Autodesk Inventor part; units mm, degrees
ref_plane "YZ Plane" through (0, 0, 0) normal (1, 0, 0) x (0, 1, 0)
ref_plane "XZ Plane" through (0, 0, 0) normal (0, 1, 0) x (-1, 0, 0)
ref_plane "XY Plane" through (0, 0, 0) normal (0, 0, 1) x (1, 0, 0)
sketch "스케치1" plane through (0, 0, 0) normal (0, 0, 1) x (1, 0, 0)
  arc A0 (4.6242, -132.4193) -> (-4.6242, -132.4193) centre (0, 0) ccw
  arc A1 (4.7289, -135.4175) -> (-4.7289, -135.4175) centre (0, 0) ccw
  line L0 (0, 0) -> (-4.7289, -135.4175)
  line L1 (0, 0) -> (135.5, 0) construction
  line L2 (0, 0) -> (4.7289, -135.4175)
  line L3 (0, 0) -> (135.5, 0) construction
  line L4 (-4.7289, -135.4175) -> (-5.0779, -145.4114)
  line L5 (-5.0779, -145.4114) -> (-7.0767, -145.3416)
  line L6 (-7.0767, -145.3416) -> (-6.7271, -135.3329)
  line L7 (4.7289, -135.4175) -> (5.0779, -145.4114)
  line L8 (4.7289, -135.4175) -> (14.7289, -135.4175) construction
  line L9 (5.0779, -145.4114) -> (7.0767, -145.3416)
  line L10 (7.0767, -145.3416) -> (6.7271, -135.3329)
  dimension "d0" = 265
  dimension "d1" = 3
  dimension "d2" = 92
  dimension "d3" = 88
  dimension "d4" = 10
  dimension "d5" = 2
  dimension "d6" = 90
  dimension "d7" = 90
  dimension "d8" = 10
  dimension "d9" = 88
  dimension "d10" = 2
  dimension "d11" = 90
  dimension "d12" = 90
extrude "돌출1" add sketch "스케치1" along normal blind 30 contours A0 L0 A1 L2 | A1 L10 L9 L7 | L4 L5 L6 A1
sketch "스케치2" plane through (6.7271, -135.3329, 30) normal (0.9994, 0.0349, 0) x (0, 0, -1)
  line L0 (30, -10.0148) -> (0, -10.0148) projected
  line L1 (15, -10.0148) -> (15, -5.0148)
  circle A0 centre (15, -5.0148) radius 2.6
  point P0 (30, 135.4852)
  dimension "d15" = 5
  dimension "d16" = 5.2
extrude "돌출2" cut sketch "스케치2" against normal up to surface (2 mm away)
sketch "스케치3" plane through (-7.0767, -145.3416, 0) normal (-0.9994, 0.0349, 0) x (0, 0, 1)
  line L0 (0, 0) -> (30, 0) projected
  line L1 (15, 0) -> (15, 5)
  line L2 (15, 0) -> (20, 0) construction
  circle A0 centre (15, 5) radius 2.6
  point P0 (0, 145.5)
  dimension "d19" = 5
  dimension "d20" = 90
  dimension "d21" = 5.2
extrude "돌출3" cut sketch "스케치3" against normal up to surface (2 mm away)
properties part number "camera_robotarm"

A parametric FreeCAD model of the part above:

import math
import FreeCAD as App
import Part
import Sketcher
from FreeCAD import Vector
Q = App.Units.Quantity

doc = App.newDocument("Part")
params = doc.addObject("Spreadsheet::Sheet", "Params")
for row, (alias, value) in enumerate([
    ("sketch1_radius", "132.5 mm"),
    ("sketch1_length", "3 mm"),
    ("sketch1_length2", "10 mm"),
    ("sketch1_length3", "2 mm"),
    ("sketch1_radius2", "135.5 mm"),
    ("pad1_length", "30 mm"),
    ("sketch2_diameter", "5.2 mm"),
    ("pocket1_length", "2 mm"),
    ("sketch3_diameter", "5.2 mm"),
    ("pocket2_length", "2 mm"),
], start=1):
    params.set(f"A{row}", alias)
    params.set(f"B{row}", "=" + value)
    params.setAlias(f"B{row}", alias)

body = doc.addObject("PartDesign::Body", "Body")

sketch1 = body.newObject("Sketcher::SketchObject", "Sketch")
sketch1.AttachmentSupport = (doc.getObject("XY_Plane"), [""])
sketch1.MapMode = "FlatFace"
sketch1.addGeometry([
    Part.ArcOfCircle(Part.Circle(Vector(0, 0, 0), Vector(0, 0, 1), 132.5), math.radians(-88), math.radians(268)),
    Part.LineSegment(Vector(4.6, -132.4, 0), Vector(4.7, -135.4, 0)),
    Part.LineSegment(Vector(4.7, -135.4, 0), Vector(5.1, -145.4, 0)),
    Part.LineSegment(Vector(5.1, -145.4, 0), Vector(7.1, -145.3, 0)),
    Part.LineSegment(Vector(7.1, -145.3, 0), Vector(6.7, -135.3, 0)),
    Part.ArcOfCircle(Part.Circle(Vector(0, 0, 0), Vector(0, 0, 1), 135.5), math.radians(-87), math.radians(267)),
    Part.LineSegment(Vector(-6.7, -135.3, 0), Vector(-7.1, -145.3, 0)),
    Part.LineSegment(Vector(-7.1, -145.3, 0), Vector(-5.1, -145.4, 0)),
    Part.LineSegment(Vector(-5.1, -145.4, 0), Vector(-4.7, -135.4, 0)),
    Part.LineSegment(Vector(-4.7, -135.4, 0), Vector(-4.6, -132.4, 0)),
], False)
sketch1.addConstraint([
    Sketcher.Constraint("Coincident", 0, 1, 1, 1),
    Sketcher.Constraint("Coincident", 1, 2, 2, 1),
    Sketcher.Constraint("Coincident", 2, 2, 3, 1),
    Sketcher.Constraint("Coincident", 3, 2, 4, 1),
    Sketcher.Constraint("Coincident", 4, 2, 5, 1),
    Sketcher.Constraint("Coincident", 5, 2, 6, 1),
    Sketcher.Constraint("Coincident", 6, 2, 7, 1),
    Sketcher.Constraint("Coincident", 7, 2, 8, 1),
    Sketcher.Constraint("Coincident", 8, 2, 9, 1),
    Sketcher.Constraint("Coincident", 9, 2, 0, 2),
    Sketcher.Constraint("Coincident", 0, 3, -1, 1),
    Sketcher.Constraint("Coincident", 5, 3, -1, 1),
    Sketcher.Constraint("Symmetric", 3, 2, 6, 2, -2),
    Sketcher.Constraint("Symmetric", 2, 2, 7, 2, -2),
    Sketcher.Constraint("Symmetric", 1, 2, 8, 2, -2),
    Sketcher.Constraint("Parallel", 1, 2),
    Sketcher.Constraint("Perpendicular", 2, 3),
    Sketcher.Constraint("Perpendicular", 3, 4),
    Sketcher.Constraint("Perpendicular", 6, 7),
    Sketcher.Constraint("Parallel", 8, 9),
    Sketcher.Constraint("Radius", 0, Q("132.5 mm")),
    Sketcher.Constraint("Angle", 1, Q("-88 deg")),
    Sketcher.Constraint("Distance", 1, Q("3 mm")),
    Sketcher.Constraint("Distance", 2, Q("10 mm")),
    Sketcher.Constraint("Distance", 3, Q("2 mm")),
    Sketcher.Constraint("Radius", 5, Q("135.5 mm")),
    Sketcher.Constraint("DistanceX", -1, 1, 1, 2, Q("4.729 mm")),
])
sketch1.setExpression("Constraints[20]", "Params.sketch1_radius")
sketch1.setExpression("Constraints[22]", "Params.sketch1_length")
sketch1.setExpression("Constraints[23]", "Params.sketch1_length2")
sketch1.setExpression("Constraints[24]", "Params.sketch1_length3")
sketch1.setExpression("Constraints[25]", "Params.sketch1_radius2")
pad1 = body.newObject("PartDesign::Pad", "Pad")
pad1.Profile = sketch1
pad1.setExpression("Length", "Params.pad1_length")

sketch2 = body.newObject("Sketcher::SketchObject", "Sketch001")
sketch2.Placement = App.Placement(Vector(6.7271, -135.3329, 30), App.Rotation(Vector(0, 0, -1), Vector(-0.034899497, 0.999390827, 0), Vector(0.999390827, 0.034899497, 0), "ZXY"))
sketch2.addGeometry(Part.Circle(Vector(15, -5, 0), Vector(0, 0, 1), 2.6), False)
sketch2.addConstraint([
    Sketcher.Constraint("Diameter", 0, Q("5.2 mm")),
    Sketcher.Constraint("DistanceX", -1, 1, 0, 3, Q("15 mm")),
    Sketcher.Constraint("DistanceY", 0, 3, -1, 1, Q("5.0148 mm")),
])
sketch2.setExpression("Constraints[0]", "Params.sketch2_diameter")
pocket1 = body.newObject("PartDesign::Pocket", "Pocket")
pocket1.Profile = sketch2
pocket1.setExpression("Length", "Params.pocket1_length")

sketch3 = body.newObject("Sketcher::SketchObject", "Sketch002")
sketch3.Placement = App.Placement(Vector(-7.0767, -145.3416, 0), App.Rotation(Vector(0, 0, 1), Vector(0.034899497, 0.999390827, 0), Vector(-0.999390827, 0.034899497, 0), "ZXY"))
sketch3.addGeometry(Part.Circle(Vector(15, 5, 0), Vector(0, 0, 1), 2.6), False)
sketch3.addConstraint([
    Sketcher.Constraint("Diameter", 0, Q("5.2 mm")),
    Sketcher.Constraint("DistanceY", -1, 1, 0, 3, Q("5 mm")),
    Sketcher.Constraint("DistanceX", -1, 1, 0, 3, Q("15 mm")),
])
sketch3.setExpression("Constraints[0]", "Params.sketch3_diameter")
pocket2 = body.newObject("PartDesign::Pocket", "Pocket001")
pocket2.Profile = sketch3
pocket2.setExpression("Length", "Params.pocket2_length")

doc.recompute()
